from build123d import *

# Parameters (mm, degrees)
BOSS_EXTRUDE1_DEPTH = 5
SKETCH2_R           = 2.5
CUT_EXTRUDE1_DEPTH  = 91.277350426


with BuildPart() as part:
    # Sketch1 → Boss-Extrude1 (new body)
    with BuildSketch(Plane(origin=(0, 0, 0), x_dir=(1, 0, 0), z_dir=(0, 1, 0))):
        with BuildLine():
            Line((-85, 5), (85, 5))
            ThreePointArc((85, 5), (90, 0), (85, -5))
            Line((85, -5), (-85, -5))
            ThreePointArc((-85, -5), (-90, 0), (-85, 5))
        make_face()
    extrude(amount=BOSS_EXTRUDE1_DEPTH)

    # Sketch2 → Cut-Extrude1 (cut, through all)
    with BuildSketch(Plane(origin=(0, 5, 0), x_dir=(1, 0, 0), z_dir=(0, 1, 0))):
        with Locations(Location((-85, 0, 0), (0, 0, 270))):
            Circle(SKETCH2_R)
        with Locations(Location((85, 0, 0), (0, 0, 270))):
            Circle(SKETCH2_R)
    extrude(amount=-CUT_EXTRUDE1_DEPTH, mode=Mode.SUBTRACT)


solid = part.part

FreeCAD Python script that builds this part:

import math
import FreeCAD as App
import Part
import Sketcher

doc = App.newDocument("Part")
body = doc.addObject("PartDesign::Body", "Body")

sketch1 = doc.addObject("Sketcher::SketchObject", "Sketch")
body.addObject(sketch1)
sketch1.AttachmentSupport = (doc.XZ_Plane, [""])
sketch1.MapMode = "FlatFace"
sketch1.addGeometry(Part.LineSegment(App.Vector(85, -5, 0), App.Vector(-85, -5, 0)), False)
sketch1.addGeometry(Part.ArcOfCircle(Part.Circle(App.Vector(-85, 0, 0), App.Vector(0, 0, 1), 5), math.radians(90), math.radians(270)), False)
sketch1.addGeometry(Part.LineSegment(App.Vector(-85, 5, 0), App.Vector(85, 5, 0)), False)
sketch1.addGeometry(Part.ArcOfCircle(Part.Circle(App.Vector(85, 0, 0), App.Vector(0, 0, 1), 5), math.radians(-90), math.radians(90)), False)
sketch1.addConstraint(Sketcher.Constraint("Tangent", 0, 2, 1, 2))
sketch1.addConstraint(Sketcher.Constraint("Tangent", 1, 1, 2, 1))
sketch1.addConstraint(Sketcher.Constraint("Tangent", 2, 2, 3, 2))
sketch1.addConstraint(Sketcher.Constraint("Tangent", 3, 1, 0, 1))
sketch1.addConstraint(Sketcher.Constraint("Horizontal", 0))
sketch1.addConstraint(Sketcher.Constraint("Horizontal", 2))
sketch1.addConstraint(Sketcher.Constraint("Symmetric", 1, 3, 3, 3, -1, 1))
sketch1.addConstraint(Sketcher.Constraint("Radius", 1, 5.0))
sketch1.addConstraint(Sketcher.Constraint("DistanceX", 0, 2, 0, 1, 170.0))
pad1 = doc.addObject("PartDesign::Pad", "Pad")
body.addObject(pad1)
pad1.Profile = sketch1
pad1.Length = 5
pad1.Reversed = True

sketch2 = doc.addObject("Sketcher::SketchObject", "Sketch001")
body.addObject(sketch2)
sketch2.AttachmentSupport = (doc.XZ_Plane, [""])
sketch2.MapMode = "FlatFace"
sketch2.AttachmentOffset = App.Placement(App.Vector(0, 0, -5), App.Rotation())
sketch2.addGeometry(Part.Circle(App.Vector(-85, 0, 0), App.Vector(0, 0, 1), 2.5), False)
sketch2.addGeometry(Part.Circle(App.Vector(85, 0, 0), App.Vector(0, 0, 1), 2.5), False)
sketch2.addConstraint(Sketcher.Constraint("Equal", 0, 1))
sketch2.addConstraint(Sketcher.Constraint("Symmetric", 0, 3, 1, 3, -1, 1))
sketch2.addConstraint(Sketcher.Constraint("PointOnObject", 0, 3, -1))
sketch2.addConstraint(Sketcher.Constraint("Diameter", 0, 5.0))
sketch2.addConstraint(Sketcher.Constraint("DistanceX", 0, 3, -1, 1, 85.0))
pocket1 = doc.addObject("PartDesign::Pocket", "Pocket")
body.addObject(pocket1)
pocket1.Profile = sketch2
pocket1.Type = "ThroughAll"
pocket1.Reversed = True

doc.recompute()
